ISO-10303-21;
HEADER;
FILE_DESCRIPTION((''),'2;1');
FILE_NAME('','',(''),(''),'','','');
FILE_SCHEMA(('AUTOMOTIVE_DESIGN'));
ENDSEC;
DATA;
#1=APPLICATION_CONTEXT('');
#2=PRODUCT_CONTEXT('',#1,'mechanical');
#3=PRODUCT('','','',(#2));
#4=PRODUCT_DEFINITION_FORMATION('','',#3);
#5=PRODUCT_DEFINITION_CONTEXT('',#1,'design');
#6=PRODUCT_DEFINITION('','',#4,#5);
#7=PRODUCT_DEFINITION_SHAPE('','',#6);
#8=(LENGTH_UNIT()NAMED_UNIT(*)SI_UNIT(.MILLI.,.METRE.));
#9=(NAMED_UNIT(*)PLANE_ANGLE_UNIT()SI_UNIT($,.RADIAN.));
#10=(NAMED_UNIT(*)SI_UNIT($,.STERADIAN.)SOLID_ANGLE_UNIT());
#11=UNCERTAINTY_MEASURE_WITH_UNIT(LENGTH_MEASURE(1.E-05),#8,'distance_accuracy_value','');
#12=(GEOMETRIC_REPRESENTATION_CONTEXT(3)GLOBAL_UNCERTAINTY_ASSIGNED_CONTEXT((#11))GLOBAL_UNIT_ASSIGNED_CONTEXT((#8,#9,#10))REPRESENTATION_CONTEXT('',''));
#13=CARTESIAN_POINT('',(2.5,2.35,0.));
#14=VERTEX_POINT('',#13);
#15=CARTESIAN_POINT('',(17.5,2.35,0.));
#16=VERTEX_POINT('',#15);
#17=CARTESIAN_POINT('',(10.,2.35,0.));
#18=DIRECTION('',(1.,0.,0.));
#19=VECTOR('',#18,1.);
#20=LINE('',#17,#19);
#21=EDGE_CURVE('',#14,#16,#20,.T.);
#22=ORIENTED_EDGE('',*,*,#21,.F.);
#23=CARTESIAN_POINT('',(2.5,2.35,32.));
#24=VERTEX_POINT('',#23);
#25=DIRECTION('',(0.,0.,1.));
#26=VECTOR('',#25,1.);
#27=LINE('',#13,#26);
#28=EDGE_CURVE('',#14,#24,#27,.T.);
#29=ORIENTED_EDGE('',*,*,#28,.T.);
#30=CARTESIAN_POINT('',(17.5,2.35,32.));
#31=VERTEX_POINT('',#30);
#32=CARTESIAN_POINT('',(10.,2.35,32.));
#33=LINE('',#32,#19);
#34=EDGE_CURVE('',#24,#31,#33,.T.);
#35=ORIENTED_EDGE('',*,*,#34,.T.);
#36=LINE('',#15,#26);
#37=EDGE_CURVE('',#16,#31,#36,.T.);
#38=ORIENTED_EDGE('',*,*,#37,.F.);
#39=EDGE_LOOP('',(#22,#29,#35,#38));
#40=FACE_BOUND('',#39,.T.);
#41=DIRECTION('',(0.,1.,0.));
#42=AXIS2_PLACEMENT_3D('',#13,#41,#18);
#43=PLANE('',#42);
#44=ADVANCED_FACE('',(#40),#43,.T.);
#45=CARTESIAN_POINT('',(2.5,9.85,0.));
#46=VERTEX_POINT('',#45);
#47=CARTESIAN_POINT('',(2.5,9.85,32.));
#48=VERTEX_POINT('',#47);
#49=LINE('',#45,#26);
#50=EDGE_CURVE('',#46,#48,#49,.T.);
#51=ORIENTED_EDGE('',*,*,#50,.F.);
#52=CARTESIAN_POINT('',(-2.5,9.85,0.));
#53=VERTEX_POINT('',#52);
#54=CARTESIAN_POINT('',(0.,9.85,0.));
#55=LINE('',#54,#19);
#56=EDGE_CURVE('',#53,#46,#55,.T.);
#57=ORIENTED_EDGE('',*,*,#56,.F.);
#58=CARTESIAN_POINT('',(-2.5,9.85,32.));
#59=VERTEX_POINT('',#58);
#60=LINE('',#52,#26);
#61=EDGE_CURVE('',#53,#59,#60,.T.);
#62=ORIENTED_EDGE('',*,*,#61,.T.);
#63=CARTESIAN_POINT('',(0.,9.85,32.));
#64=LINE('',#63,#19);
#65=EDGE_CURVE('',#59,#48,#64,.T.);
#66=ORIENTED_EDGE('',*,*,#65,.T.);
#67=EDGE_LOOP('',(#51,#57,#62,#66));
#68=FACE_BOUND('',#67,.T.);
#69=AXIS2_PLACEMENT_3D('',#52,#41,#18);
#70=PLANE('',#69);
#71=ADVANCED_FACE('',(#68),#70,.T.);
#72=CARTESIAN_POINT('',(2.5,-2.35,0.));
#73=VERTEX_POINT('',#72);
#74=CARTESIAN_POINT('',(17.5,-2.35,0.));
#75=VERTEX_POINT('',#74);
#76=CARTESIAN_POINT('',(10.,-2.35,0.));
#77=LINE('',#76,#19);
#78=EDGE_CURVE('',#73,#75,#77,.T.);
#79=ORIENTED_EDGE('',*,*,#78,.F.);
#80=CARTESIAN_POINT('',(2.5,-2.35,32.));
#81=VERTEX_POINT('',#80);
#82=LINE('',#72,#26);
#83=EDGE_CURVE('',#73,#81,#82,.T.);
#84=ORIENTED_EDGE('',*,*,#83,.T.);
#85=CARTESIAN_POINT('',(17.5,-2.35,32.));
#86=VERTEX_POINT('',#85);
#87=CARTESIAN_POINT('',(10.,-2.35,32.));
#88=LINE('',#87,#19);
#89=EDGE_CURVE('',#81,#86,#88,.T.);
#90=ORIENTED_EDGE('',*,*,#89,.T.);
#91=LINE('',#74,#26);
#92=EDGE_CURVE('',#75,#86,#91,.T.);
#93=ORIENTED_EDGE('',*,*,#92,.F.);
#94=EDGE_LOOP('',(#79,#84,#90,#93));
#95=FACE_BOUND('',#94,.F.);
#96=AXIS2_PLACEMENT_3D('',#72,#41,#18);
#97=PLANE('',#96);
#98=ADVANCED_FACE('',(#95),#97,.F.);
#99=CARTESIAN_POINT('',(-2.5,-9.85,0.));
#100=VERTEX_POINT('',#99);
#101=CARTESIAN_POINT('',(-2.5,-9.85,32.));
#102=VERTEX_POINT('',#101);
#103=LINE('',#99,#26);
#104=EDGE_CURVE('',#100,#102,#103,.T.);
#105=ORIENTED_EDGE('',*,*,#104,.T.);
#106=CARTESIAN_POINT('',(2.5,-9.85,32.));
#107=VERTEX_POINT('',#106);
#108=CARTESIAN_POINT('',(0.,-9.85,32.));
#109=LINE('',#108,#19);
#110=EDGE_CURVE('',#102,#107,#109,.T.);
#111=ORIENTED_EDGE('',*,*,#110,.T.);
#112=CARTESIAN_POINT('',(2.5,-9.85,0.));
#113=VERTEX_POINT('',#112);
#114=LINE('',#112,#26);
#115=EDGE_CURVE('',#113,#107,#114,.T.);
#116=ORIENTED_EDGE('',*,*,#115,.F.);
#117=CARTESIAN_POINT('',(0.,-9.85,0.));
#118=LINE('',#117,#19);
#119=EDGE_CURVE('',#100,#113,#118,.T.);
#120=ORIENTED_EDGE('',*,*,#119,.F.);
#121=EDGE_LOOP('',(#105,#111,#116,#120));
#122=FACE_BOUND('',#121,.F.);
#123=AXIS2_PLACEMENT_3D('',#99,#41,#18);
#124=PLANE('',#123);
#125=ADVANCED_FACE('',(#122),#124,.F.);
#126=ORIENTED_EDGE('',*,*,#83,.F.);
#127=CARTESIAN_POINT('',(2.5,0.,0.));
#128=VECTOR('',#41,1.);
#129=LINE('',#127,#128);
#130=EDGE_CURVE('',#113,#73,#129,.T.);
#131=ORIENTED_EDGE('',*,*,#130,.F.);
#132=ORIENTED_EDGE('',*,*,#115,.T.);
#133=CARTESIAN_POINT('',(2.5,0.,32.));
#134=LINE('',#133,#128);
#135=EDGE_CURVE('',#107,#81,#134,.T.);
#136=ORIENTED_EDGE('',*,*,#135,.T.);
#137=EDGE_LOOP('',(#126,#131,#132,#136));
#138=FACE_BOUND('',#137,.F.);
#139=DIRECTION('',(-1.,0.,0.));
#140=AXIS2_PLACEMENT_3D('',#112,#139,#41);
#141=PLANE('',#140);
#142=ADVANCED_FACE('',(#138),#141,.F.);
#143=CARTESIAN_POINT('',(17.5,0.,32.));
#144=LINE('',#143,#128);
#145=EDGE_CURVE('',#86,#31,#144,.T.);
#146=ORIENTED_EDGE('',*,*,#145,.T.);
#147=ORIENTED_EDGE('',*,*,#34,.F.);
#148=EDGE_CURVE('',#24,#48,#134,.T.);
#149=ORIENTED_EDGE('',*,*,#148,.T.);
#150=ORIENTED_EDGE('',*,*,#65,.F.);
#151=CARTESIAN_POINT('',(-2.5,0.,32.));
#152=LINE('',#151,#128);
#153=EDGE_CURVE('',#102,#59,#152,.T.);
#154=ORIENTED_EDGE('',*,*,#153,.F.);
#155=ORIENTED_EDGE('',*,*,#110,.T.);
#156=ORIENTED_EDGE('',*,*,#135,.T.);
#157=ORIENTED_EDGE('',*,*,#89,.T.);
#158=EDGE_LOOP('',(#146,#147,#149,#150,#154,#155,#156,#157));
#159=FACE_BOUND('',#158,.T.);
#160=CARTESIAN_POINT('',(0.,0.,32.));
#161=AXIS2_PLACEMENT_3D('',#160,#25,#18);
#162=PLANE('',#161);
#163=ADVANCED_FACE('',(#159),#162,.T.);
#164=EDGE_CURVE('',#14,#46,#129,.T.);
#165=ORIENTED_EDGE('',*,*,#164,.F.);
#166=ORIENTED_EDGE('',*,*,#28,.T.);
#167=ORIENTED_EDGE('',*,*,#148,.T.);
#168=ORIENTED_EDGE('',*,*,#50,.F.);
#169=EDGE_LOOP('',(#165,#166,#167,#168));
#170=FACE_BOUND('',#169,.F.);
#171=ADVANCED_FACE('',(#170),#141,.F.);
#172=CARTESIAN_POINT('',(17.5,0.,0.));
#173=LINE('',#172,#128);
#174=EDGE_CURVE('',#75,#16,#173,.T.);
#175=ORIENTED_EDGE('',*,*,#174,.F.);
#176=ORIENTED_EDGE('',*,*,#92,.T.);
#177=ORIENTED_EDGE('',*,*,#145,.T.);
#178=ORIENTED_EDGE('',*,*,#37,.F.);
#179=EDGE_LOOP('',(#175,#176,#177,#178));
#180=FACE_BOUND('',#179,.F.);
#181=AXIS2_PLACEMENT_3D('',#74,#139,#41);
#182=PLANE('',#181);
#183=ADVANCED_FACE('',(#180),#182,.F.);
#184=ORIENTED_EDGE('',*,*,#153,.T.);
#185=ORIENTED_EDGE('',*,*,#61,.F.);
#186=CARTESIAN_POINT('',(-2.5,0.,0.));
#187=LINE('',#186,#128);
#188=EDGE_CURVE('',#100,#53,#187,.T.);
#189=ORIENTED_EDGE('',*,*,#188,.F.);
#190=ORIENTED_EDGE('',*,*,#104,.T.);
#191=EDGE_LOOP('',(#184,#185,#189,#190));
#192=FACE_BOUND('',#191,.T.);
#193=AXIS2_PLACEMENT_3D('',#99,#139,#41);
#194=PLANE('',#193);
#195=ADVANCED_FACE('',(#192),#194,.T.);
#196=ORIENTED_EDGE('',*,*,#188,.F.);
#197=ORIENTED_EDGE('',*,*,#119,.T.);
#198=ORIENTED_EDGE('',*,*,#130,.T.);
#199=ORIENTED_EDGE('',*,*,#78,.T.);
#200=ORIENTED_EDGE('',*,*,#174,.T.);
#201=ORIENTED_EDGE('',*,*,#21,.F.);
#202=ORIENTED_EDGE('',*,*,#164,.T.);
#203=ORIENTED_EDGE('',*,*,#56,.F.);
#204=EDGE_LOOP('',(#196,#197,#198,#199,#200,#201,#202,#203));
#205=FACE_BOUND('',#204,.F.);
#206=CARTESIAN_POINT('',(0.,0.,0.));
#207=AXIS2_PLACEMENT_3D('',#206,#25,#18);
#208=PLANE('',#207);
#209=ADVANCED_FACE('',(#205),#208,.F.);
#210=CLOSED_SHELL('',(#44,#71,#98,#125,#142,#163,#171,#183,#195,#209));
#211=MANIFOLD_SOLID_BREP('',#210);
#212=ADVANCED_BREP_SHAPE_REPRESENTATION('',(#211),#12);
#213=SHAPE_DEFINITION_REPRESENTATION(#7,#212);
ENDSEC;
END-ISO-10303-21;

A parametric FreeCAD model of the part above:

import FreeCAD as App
import Part
import Sketcher

V = App.Vector


def add_polygon(sketch, points):
    """Adds a closed chain of lines whose ends are joined by coincident constraints."""
    first, n = sketch.GeometryCount, len(points)
    for a, b in zip(points, points[1:] + points[:1]):
        sketch.addGeometry(Part.LineSegment(App.Vector(*a, 0), App.Vector(*b, 0)), False)
    for i in range(n):
        sketch.addConstraint(Sketcher.Constraint("Coincident", first + i, 2, first + (i + 1) % n, 1))

doc = App.newDocument("Part")
body = doc.addObject("PartDesign::Body", "Body")

# Sketch on XY plane
sketch1 = body.newObject("Sketcher::SketchObject", "Sketch")
sketch1.AttachmentSupport = (doc.getObject("XY_Plane"), [""])
sketch1.MapMode = "FlatFace"
add_polygon(sketch1, [(-2.5, 9.85), (-2.5, -9.85), (2.5, -9.85), (2.5, 9.85)])  # lines 0-3
sketch1.addConstraint(Sketcher.Constraint("Vertical", 0))
sketch1.addConstraint(Sketcher.Constraint("Horizontal", 1))
sketch1.addConstraint(Sketcher.Constraint("Vertical", 2))
sketch1.addConstraint(Sketcher.Constraint("Horizontal", 3))
sketch1.addConstraint(Sketcher.Constraint("Symmetric", 0, 2, 2, 2, -1, 1))
sketch1.addConstraint(Sketcher.Constraint("DistanceX", 1, 1, 1, 2, 5.0))
sketch1.addConstraint(Sketcher.Constraint("DistanceY", 0, 2, 0, 1, 19.7))
pad1 = body.newObject("PartDesign::Pad", "Pad")
pad1.Profile = sketch1
pad1.Length = 32

# Sketch on XY plane
sketch2 = body.newObject("Sketcher::SketchObject", "Sketch001")
sketch2.AttachmentSupport = (doc.getObject("XY_Plane"), [""])
sketch2.MapMode = "FlatFace"
add_polygon(sketch2, [(2.5, 2.35), (2.5, -2.35), (17.5, -2.35), (17.5, 2.35)])  # lines 0-3
sketch2.addConstraint(Sketcher.Constraint("Vertical", 0))
sketch2.addConstraint(Sketcher.Constraint("Horizontal", 1))
sketch2.addConstraint(Sketcher.Constraint("Vertical", 2))
sketch2.addConstraint(Sketcher.Constraint("Horizontal", 3))
sketch2.addConstraint(Sketcher.Constraint("DistanceX", 1, 1, 1, 2, 15.0))
sketch2.addConstraint(Sketcher.Constraint("DistanceY", 0, 2, 0, 1, 4.7))
sketch2.addConstraint(Sketcher.Constraint("DistanceX", -1, 1, 0, 2, 2.5))
sketch2.addConstraint(Sketcher.Constraint("DistanceY", 0, 2, -1, 1, 2.35))
pad2 = body.newObject("PartDesign::Pad", "Pad001")
pad2.Profile = sketch2
pad2.Length = 32

doc.recompute()
